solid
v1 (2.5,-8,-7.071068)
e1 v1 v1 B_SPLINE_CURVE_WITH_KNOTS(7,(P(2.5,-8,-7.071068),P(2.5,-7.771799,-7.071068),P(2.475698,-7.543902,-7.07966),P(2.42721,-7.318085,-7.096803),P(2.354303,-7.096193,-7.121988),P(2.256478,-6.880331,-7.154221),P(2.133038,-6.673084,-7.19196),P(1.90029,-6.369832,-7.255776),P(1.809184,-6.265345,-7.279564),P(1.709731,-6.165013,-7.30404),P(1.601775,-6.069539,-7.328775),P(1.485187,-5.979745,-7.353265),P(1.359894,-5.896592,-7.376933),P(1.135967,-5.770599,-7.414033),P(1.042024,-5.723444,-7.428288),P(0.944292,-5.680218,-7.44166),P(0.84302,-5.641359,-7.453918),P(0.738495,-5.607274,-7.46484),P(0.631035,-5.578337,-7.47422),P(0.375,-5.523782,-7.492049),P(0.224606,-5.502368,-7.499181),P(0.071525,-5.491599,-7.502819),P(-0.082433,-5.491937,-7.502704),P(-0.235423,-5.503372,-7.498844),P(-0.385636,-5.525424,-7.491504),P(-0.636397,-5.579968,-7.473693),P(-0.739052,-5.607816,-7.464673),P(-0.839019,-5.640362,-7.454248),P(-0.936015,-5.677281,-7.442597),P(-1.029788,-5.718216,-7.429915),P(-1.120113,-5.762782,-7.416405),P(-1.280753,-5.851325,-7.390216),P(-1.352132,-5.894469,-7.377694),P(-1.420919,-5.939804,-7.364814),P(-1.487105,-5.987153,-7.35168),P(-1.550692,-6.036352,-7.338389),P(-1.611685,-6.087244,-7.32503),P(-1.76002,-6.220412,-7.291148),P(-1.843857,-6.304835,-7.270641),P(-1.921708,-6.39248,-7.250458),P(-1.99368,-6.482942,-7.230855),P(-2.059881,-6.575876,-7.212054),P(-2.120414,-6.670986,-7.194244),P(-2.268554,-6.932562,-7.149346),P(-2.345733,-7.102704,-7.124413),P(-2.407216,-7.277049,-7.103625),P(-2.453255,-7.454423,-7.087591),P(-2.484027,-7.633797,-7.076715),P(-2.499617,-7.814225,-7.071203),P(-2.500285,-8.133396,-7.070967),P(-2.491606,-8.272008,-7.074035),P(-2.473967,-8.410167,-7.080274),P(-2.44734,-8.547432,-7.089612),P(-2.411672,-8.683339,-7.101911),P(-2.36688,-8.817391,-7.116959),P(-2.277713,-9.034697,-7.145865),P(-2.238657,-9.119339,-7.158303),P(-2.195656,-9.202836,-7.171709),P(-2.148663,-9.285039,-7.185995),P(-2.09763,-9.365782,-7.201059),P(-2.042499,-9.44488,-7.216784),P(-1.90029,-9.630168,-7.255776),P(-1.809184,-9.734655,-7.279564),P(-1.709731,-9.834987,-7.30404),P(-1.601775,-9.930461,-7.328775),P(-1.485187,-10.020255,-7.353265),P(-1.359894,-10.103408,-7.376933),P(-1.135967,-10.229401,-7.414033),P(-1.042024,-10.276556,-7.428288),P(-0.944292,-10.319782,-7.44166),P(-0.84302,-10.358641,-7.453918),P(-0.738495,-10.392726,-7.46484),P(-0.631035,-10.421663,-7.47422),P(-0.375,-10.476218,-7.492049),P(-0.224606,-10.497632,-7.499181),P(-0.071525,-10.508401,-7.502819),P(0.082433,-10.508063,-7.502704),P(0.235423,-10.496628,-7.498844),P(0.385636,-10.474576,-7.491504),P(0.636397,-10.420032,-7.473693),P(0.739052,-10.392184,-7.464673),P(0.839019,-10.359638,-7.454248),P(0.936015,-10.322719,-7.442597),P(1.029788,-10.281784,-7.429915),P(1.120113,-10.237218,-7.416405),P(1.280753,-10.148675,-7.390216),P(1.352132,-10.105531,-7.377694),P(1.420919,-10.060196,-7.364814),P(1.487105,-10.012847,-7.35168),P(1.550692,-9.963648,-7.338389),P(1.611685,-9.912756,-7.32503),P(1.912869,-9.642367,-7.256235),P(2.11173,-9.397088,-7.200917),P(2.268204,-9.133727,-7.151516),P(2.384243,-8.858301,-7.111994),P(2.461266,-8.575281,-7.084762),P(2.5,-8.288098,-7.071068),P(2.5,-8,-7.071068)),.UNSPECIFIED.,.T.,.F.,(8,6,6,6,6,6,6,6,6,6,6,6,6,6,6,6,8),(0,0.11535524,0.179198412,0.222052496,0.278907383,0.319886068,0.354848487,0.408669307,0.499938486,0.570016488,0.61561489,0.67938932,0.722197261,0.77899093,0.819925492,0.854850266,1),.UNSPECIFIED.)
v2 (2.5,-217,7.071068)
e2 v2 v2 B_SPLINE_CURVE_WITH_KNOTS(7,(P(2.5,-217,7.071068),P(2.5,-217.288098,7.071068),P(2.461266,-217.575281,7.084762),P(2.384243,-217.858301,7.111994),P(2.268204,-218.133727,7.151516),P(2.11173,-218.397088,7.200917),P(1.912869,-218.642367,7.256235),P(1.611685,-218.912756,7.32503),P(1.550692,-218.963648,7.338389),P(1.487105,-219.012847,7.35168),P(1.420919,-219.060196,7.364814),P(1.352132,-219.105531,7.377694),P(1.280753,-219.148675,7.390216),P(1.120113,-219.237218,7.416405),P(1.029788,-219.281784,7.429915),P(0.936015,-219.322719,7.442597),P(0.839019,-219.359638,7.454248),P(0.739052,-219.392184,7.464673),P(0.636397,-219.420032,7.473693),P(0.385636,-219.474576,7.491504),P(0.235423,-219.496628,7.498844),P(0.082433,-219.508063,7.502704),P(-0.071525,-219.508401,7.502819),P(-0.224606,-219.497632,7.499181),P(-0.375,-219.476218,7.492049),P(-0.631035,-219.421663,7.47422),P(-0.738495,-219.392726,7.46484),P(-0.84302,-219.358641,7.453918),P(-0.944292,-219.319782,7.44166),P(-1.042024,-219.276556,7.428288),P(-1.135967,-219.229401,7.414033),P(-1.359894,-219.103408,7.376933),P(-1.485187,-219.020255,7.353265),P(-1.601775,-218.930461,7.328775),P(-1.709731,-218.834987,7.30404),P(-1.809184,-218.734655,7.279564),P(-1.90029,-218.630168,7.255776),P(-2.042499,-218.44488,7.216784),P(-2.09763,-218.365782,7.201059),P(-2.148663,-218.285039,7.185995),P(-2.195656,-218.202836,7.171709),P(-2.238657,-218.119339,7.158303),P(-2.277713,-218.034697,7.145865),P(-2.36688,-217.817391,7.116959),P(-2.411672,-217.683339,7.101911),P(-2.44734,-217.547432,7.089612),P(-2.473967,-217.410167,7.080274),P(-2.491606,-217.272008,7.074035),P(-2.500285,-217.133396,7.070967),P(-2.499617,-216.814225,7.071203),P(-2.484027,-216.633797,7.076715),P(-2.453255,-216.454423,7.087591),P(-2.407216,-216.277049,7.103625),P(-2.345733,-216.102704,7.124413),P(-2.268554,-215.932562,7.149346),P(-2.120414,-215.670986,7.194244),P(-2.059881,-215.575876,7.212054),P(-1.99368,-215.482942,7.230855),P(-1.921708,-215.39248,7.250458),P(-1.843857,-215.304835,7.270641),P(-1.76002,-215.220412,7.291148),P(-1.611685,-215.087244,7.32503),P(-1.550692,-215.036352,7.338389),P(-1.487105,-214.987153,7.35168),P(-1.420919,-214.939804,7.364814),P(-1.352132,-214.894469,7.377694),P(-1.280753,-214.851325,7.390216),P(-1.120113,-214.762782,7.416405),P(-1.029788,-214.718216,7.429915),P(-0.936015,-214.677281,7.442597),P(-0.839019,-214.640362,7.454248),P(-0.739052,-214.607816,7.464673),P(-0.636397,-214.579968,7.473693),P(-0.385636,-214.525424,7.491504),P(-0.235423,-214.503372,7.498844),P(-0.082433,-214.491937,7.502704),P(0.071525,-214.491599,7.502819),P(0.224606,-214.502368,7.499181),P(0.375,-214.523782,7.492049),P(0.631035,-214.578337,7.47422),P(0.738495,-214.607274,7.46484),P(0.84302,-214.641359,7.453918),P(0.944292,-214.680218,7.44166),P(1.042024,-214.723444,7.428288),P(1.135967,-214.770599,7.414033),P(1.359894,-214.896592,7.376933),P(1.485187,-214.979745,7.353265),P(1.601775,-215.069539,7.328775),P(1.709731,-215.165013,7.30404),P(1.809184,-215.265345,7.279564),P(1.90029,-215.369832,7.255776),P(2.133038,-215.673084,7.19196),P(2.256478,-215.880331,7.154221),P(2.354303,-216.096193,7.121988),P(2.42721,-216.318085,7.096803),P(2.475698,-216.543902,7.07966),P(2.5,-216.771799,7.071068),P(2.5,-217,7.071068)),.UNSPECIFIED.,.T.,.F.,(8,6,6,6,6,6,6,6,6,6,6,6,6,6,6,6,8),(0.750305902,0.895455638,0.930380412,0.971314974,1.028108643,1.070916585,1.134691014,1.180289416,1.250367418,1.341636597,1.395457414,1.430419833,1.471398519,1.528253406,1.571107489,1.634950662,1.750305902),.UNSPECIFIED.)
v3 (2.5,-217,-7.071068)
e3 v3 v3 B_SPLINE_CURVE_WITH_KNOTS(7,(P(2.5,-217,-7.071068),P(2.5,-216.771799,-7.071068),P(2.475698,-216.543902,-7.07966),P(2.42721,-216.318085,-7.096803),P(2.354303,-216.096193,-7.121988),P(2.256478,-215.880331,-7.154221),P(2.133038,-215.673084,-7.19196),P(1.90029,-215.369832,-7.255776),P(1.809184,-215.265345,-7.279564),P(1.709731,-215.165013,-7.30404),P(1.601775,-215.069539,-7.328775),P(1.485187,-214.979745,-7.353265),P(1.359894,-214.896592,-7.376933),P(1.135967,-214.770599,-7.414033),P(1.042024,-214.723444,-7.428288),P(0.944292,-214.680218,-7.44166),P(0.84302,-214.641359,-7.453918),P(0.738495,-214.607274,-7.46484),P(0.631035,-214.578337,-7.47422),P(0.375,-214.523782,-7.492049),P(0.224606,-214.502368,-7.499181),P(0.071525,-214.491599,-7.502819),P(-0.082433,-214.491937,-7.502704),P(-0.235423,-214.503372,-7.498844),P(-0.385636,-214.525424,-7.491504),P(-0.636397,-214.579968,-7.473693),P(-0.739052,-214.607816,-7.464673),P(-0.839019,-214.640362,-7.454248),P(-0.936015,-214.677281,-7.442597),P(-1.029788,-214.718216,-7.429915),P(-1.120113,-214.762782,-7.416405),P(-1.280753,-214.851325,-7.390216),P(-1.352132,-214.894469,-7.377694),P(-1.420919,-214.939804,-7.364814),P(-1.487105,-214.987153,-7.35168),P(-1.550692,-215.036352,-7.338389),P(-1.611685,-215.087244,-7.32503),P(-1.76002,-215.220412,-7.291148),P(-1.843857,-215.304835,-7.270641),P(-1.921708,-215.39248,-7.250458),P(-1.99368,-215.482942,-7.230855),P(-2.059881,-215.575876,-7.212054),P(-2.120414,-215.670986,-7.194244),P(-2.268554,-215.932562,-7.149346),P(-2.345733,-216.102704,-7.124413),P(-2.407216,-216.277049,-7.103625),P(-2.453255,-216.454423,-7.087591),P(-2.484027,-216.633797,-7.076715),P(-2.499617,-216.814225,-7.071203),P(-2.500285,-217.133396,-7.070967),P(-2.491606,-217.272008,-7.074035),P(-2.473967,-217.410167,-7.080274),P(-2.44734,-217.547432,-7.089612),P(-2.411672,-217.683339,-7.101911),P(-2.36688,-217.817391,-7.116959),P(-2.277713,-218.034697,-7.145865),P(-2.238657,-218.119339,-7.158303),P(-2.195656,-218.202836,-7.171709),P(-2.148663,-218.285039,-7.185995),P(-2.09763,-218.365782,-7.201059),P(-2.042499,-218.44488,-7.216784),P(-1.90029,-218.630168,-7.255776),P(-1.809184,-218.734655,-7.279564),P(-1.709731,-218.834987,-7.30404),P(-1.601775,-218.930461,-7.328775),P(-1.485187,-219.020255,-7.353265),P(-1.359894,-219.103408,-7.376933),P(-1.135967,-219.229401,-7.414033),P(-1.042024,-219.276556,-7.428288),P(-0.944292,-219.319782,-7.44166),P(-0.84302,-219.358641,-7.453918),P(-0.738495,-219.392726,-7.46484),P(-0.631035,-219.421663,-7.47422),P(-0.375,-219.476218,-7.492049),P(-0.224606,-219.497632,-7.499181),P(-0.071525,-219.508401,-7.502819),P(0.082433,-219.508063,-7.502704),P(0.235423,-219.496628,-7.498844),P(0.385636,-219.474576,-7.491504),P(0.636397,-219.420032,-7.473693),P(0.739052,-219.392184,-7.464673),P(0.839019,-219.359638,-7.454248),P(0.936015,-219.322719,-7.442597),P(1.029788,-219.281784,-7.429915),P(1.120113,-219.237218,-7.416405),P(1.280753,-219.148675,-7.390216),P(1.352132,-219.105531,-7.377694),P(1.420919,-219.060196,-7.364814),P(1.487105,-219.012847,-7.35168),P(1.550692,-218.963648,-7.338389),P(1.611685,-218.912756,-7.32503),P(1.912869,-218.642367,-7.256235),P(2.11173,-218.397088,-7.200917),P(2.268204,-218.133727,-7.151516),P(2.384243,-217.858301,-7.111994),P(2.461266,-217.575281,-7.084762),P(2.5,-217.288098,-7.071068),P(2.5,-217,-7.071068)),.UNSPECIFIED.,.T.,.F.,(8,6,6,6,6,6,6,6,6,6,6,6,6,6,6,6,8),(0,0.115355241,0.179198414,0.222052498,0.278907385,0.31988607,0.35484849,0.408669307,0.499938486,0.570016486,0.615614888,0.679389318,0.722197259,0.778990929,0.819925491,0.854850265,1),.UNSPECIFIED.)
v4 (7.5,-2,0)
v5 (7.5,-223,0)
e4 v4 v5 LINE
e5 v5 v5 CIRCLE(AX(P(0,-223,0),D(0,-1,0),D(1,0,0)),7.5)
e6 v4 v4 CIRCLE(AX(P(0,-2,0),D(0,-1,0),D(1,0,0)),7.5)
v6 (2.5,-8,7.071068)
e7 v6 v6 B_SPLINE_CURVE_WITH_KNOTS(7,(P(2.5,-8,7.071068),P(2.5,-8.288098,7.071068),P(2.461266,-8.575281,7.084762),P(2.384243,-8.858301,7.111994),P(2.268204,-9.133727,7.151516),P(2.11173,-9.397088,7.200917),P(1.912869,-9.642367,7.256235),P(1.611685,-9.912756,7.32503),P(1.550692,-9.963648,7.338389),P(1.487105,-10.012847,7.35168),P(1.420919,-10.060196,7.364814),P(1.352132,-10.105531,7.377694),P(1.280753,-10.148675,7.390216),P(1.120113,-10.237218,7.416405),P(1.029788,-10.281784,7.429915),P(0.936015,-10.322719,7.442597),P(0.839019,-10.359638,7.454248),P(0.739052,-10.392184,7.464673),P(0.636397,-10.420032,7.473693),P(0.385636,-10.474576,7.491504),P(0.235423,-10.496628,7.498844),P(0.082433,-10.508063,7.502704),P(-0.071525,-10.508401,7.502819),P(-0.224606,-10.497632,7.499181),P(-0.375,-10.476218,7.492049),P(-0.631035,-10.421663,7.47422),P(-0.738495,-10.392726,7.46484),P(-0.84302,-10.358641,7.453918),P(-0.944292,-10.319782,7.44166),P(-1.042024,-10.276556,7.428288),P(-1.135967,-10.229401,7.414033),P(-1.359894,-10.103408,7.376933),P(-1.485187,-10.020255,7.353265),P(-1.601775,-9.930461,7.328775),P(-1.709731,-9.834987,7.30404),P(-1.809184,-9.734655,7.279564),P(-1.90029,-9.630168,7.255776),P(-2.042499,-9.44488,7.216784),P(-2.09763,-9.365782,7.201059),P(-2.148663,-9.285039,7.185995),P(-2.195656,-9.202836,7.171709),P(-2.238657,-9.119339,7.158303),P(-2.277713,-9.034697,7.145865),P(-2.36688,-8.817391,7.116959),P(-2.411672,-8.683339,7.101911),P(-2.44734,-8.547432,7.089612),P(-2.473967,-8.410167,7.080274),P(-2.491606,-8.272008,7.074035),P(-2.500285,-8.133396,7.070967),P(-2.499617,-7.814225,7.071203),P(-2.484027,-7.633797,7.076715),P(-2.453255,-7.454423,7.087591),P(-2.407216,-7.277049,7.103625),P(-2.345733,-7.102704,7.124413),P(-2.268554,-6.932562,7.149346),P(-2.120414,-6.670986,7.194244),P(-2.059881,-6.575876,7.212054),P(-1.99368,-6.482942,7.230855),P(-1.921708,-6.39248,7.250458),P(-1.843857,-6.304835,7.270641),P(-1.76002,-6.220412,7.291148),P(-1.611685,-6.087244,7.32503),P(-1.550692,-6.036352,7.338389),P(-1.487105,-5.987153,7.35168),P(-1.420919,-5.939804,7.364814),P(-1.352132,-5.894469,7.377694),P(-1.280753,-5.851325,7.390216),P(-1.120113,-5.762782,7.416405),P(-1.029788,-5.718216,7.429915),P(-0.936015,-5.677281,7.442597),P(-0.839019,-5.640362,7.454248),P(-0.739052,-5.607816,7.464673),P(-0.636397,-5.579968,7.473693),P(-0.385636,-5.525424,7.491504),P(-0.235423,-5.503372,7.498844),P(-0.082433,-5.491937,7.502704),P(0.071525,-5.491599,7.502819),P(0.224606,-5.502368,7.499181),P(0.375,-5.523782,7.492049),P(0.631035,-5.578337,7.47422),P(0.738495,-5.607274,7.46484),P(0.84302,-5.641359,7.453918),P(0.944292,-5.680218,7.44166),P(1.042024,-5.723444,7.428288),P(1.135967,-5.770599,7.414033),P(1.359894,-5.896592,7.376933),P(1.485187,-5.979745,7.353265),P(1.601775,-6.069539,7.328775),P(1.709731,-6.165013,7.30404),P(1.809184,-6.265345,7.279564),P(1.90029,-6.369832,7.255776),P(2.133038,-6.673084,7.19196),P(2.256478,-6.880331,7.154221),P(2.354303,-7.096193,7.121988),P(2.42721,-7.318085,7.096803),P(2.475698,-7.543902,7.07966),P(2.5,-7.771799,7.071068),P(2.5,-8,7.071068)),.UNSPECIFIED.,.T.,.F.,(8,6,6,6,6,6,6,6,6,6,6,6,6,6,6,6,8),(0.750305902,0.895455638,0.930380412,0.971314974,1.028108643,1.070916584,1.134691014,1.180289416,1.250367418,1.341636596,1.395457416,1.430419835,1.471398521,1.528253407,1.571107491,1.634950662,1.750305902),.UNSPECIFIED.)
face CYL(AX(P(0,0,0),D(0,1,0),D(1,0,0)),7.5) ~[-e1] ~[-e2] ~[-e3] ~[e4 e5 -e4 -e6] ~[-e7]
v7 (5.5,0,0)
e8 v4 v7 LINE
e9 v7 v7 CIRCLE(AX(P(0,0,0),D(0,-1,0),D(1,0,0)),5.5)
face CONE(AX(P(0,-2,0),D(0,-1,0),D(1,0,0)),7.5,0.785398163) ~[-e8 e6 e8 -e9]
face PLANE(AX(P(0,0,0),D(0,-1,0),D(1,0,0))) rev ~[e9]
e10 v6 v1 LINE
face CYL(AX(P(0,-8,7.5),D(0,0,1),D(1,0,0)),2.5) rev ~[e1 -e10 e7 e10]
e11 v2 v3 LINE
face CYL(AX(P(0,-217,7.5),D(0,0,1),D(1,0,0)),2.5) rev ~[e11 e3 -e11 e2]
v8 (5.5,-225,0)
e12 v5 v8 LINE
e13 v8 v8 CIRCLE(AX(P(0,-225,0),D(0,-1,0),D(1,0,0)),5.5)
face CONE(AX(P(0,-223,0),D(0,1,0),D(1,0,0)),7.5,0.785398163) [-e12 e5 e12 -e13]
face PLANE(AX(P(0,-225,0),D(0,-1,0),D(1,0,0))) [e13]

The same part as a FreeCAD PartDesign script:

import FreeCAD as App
import Part
import Sketcher


def edges_at(feature, points):
    """Names of the edges that pass closest to the given points."""
    edges = feature.Shape.Edges
    near = lambda p: min(range(len(edges)), key=lambda i: edges[i].distToShape(Part.Vertex(*p))[0])
    return sorted({f"Edge{near(p) + 1}" for p in points})

doc = App.newDocument("Part")
body = doc.addObject("PartDesign::Body", "Body")

# Sketch on XZ plane
sketch1 = body.newObject("Sketcher::SketchObject", "Sketch")
sketch1.AttachmentSupport = (doc.getObject("XZ_Plane"), [""])
sketch1.MapMode = "FlatFace"
sketch1.addGeometry(Part.Circle(App.Vector(0, 0, 0), App.Vector(0, 0, 1), 7.5), False)
sketch1.addConstraint([
    Sketcher.Constraint("Coincident", 0, 3, -1, 1),
    Sketcher.Constraint("Diameter", 0, 15.0),
])
pad1 = body.newObject("PartDesign::Pad", "Pad")
pad1.Profile = sketch1
pad1.Length = 225

# Sketch on XY plane
sketch2 = body.newObject("Sketcher::SketchObject", "Sketch001")
sketch2.AttachmentSupport = (doc.getObject("XY_Plane"), [""])
sketch2.MapMode = "FlatFace"
sketch2.AttachmentOffset = App.Placement(App.Vector(0, 0, 7.5), App.Rotation())
sketch2.addGeometry([
    Part.Circle(App.Vector(0, -8, 0), App.Vector(0, 0, 1), 2.5),
    Part.Circle(App.Vector(0, -217, 0), App.Vector(0, 0, 1), 2.5),
], False)
sketch2.addConstraint([
    Sketcher.Constraint("Equal", 0, 1),
    Sketcher.Constraint("PointOnObject", 0, 3, -2),
    Sketcher.Constraint("PointOnObject", 1, 3, -2),
    Sketcher.Constraint("Diameter", 0, 5.0),
    Sketcher.Constraint("DistanceY", 0, 3, -1, 1, 8.0),
    Sketcher.Constraint("DistanceY", 1, 3, -1, 1, 217.0),
])
pocket1 = body.newObject("PartDesign::Pocket", "Pocket")
pocket1.Profile = sketch2
pocket1.Type = "ThroughAll"
doc.recompute()

chamfer = body.newObject("PartDesign::Chamfer", "Chamfer")
chamfer.Base = (pocket1, edges_at(pocket1, [(-7.5, -225, 0)]))
chamfer.Size = 2
doc.recompute()

chamfer2 = body.newObject("PartDesign::Chamfer", "Chamfer001")
chamfer2.Base = (chamfer, edges_at(chamfer, [(-7.5, 0, 0)]))
chamfer2.Size = 2

doc.recompute()
